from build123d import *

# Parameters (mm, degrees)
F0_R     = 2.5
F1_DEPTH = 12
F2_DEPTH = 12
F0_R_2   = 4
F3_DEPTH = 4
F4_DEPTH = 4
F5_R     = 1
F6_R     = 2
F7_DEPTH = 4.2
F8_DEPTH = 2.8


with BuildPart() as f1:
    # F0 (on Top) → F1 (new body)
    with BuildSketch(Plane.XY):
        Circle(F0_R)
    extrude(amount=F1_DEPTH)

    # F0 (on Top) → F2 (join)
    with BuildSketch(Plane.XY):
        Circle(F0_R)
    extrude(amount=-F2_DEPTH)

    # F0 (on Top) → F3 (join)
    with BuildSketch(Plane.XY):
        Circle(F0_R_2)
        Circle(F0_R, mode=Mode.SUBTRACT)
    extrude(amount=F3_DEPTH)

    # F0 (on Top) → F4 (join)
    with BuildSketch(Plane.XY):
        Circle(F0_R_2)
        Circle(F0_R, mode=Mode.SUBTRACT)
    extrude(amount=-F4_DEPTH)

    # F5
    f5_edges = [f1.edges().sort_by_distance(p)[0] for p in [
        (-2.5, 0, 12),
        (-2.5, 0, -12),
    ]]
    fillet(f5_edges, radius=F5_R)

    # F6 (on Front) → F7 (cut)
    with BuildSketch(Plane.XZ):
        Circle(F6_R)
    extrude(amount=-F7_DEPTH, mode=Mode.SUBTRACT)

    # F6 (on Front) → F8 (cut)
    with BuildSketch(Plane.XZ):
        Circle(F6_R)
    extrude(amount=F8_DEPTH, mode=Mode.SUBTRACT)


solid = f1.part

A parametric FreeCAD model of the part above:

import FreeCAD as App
import Part
import Sketcher
from FreeCAD import Vector
Q = App.Units.Quantity


def edges_at(feature, points):
    """Names of the edges that pass closest to the given points."""
    edges = feature.Shape.Edges
    near = lambda p: min(range(len(edges)), key=lambda i: edges[i].distToShape(Part.Vertex(*p))[0])
    return sorted({f"Edge{near(p) + 1}" for p in points})

doc = App.newDocument("Part")
body = doc.addObject("PartDesign::Body", "Body")

# Sketch on XY plane
sketch1 = doc.addObject("Sketcher::SketchObject", "Sketch")
body.addObject(sketch1)
sketch1.AttachmentSupport = (doc.XY_Plane, [""])
sketch1.MapMode = "FlatFace"
sketch1.addGeometry(Part.Circle(Vector(0, 0, 0), Vector(0, 0, 1), 2.5), False)
sketch1.addConstraint(Sketcher.Constraint("Coincident", 0, 3, -1, 1))
sketch1.addConstraint(Sketcher.Constraint("Diameter", 0, Q("5 mm")))
pad1 = doc.addObject("PartDesign::Pad", "Pad")
body.addObject(pad1)
pad1.Profile = sketch1
pad1.Length = 12

# Sketch on XY plane
sketch2 = doc.addObject("Sketcher::SketchObject", "Sketch001")
body.addObject(sketch2)
sketch2.AttachmentSupport = (doc.XY_Plane, [""])
sketch2.MapMode = "FlatFace"
sketch2.addGeometry(Part.Circle(Vector(0, 0, 0), Vector(0, 0, 1), 2.5), False)
sketch2.addConstraint(Sketcher.Constraint("Coincident", 0, 3, -1, 1))
sketch2.addConstraint(Sketcher.Constraint("Diameter", 0, Q("5 mm")))
pad2 = doc.addObject("PartDesign::Pad", "Pad001")
body.addObject(pad2)
pad2.Profile = sketch2
pad2.Length = 12
pad2.Reversed = True

# Sketch on XY plane
sketch3 = doc.addObject("Sketcher::SketchObject", "Sketch002")
body.addObject(sketch3)
sketch3.AttachmentSupport = (doc.XY_Plane, [""])
sketch3.MapMode = "FlatFace"
sketch3.addGeometry(Part.Circle(Vector(0, 0, 0), Vector(0, 0, 1), 4), False)
sketch3.addGeometry(Part.Circle(Vector(0, 0, 0), Vector(0, 0, 1), 2.5), False)
sketch3.addConstraint(Sketcher.Constraint("Coincident", 0, 3, -1, 1))
sketch3.addConstraint(Sketcher.Constraint("Coincident", 1, 3, -1, 1))
sketch3.addConstraint(Sketcher.Constraint("Diameter", 0, Q("8 mm")))
sketch3.addConstraint(Sketcher.Constraint("Diameter", 1, Q("5 mm")))
pad3 = doc.addObject("PartDesign::Pad", "Pad002")
body.addObject(pad3)
pad3.Profile = sketch3
pad3.Length = 4

# Sketch on XY plane
sketch4 = doc.addObject("Sketcher::SketchObject", "Sketch003")
body.addObject(sketch4)
sketch4.AttachmentSupport = (doc.XY_Plane, [""])
sketch4.MapMode = "FlatFace"
sketch4.addGeometry(Part.Circle(Vector(0, 0, 0), Vector(0, 0, 1), 4), False)
sketch4.addGeometry(Part.Circle(Vector(0, 0, 0), Vector(0, 0, 1), 2.5), False)
sketch4.addConstraint(Sketcher.Constraint("Coincident", 0, 3, -1, 1))
sketch4.addConstraint(Sketcher.Constraint("Coincident", 1, 3, -1, 1))
sketch4.addConstraint(Sketcher.Constraint("Diameter", 0, Q("8 mm")))
sketch4.addConstraint(Sketcher.Constraint("Diameter", 1, Q("5 mm")))
pad4 = doc.addObject("PartDesign::Pad", "Pad003")
body.addObject(pad4)
pad4.Profile = sketch4
pad4.Length = 4
pad4.Reversed = True
doc.recompute()

fillet = doc.addObject("PartDesign::Fillet", "Fillet")
body.addObject(fillet)
fillet.Base = (pad4, edges_at(pad4, [(-2.5, 0, 12), (-2.5, 0, -12)]))
fillet.Radius = 1

# Sketch on XZ plane
sketch5 = doc.addObject("Sketcher::SketchObject", "Sketch004")
body.addObject(sketch5)
sketch5.AttachmentSupport = (doc.XZ_Plane, [""])
sketch5.MapMode = "FlatFace"
sketch5.addGeometry(Part.Circle(Vector(0, 0, 0), Vector(0, 0, 1), 2), False)
sketch5.addConstraint(Sketcher.Constraint("Coincident", 0, 3, -1, 1))
sketch5.addConstraint(Sketcher.Constraint("Diameter", 0, Q("4 mm")))
pocket1 = doc.addObject("PartDesign::Pocket", "Pocket")
body.addObject(pocket1)
pocket1.Profile = sketch5
pocket1.Length = 4.2

# Sketch on XZ plane
sketch6 = doc.addObject("Sketcher::SketchObject", "Sketch005")
body.addObject(sketch6)
sketch6.AttachmentSupport = (doc.XZ_Plane, [""])
sketch6.MapMode = "FlatFace"
sketch6.addGeometry(Part.Circle(Vector(0, 0, 0), Vector(0, 0, 1), 2), False)
sketch6.addConstraint(Sketcher.Constraint("Coincident", 0, 3, -1, 1))
sketch6.addConstraint(Sketcher.Constraint("Diameter", 0, Q("4 mm")))
pocket2 = doc.addObject("PartDesign::Pocket", "Pocket001")
body.addObject(pocket2)
pocket2.Profile = sketch6
pocket2.Length = 2.8
pocket2.Reversed = True

doc.recompute()
